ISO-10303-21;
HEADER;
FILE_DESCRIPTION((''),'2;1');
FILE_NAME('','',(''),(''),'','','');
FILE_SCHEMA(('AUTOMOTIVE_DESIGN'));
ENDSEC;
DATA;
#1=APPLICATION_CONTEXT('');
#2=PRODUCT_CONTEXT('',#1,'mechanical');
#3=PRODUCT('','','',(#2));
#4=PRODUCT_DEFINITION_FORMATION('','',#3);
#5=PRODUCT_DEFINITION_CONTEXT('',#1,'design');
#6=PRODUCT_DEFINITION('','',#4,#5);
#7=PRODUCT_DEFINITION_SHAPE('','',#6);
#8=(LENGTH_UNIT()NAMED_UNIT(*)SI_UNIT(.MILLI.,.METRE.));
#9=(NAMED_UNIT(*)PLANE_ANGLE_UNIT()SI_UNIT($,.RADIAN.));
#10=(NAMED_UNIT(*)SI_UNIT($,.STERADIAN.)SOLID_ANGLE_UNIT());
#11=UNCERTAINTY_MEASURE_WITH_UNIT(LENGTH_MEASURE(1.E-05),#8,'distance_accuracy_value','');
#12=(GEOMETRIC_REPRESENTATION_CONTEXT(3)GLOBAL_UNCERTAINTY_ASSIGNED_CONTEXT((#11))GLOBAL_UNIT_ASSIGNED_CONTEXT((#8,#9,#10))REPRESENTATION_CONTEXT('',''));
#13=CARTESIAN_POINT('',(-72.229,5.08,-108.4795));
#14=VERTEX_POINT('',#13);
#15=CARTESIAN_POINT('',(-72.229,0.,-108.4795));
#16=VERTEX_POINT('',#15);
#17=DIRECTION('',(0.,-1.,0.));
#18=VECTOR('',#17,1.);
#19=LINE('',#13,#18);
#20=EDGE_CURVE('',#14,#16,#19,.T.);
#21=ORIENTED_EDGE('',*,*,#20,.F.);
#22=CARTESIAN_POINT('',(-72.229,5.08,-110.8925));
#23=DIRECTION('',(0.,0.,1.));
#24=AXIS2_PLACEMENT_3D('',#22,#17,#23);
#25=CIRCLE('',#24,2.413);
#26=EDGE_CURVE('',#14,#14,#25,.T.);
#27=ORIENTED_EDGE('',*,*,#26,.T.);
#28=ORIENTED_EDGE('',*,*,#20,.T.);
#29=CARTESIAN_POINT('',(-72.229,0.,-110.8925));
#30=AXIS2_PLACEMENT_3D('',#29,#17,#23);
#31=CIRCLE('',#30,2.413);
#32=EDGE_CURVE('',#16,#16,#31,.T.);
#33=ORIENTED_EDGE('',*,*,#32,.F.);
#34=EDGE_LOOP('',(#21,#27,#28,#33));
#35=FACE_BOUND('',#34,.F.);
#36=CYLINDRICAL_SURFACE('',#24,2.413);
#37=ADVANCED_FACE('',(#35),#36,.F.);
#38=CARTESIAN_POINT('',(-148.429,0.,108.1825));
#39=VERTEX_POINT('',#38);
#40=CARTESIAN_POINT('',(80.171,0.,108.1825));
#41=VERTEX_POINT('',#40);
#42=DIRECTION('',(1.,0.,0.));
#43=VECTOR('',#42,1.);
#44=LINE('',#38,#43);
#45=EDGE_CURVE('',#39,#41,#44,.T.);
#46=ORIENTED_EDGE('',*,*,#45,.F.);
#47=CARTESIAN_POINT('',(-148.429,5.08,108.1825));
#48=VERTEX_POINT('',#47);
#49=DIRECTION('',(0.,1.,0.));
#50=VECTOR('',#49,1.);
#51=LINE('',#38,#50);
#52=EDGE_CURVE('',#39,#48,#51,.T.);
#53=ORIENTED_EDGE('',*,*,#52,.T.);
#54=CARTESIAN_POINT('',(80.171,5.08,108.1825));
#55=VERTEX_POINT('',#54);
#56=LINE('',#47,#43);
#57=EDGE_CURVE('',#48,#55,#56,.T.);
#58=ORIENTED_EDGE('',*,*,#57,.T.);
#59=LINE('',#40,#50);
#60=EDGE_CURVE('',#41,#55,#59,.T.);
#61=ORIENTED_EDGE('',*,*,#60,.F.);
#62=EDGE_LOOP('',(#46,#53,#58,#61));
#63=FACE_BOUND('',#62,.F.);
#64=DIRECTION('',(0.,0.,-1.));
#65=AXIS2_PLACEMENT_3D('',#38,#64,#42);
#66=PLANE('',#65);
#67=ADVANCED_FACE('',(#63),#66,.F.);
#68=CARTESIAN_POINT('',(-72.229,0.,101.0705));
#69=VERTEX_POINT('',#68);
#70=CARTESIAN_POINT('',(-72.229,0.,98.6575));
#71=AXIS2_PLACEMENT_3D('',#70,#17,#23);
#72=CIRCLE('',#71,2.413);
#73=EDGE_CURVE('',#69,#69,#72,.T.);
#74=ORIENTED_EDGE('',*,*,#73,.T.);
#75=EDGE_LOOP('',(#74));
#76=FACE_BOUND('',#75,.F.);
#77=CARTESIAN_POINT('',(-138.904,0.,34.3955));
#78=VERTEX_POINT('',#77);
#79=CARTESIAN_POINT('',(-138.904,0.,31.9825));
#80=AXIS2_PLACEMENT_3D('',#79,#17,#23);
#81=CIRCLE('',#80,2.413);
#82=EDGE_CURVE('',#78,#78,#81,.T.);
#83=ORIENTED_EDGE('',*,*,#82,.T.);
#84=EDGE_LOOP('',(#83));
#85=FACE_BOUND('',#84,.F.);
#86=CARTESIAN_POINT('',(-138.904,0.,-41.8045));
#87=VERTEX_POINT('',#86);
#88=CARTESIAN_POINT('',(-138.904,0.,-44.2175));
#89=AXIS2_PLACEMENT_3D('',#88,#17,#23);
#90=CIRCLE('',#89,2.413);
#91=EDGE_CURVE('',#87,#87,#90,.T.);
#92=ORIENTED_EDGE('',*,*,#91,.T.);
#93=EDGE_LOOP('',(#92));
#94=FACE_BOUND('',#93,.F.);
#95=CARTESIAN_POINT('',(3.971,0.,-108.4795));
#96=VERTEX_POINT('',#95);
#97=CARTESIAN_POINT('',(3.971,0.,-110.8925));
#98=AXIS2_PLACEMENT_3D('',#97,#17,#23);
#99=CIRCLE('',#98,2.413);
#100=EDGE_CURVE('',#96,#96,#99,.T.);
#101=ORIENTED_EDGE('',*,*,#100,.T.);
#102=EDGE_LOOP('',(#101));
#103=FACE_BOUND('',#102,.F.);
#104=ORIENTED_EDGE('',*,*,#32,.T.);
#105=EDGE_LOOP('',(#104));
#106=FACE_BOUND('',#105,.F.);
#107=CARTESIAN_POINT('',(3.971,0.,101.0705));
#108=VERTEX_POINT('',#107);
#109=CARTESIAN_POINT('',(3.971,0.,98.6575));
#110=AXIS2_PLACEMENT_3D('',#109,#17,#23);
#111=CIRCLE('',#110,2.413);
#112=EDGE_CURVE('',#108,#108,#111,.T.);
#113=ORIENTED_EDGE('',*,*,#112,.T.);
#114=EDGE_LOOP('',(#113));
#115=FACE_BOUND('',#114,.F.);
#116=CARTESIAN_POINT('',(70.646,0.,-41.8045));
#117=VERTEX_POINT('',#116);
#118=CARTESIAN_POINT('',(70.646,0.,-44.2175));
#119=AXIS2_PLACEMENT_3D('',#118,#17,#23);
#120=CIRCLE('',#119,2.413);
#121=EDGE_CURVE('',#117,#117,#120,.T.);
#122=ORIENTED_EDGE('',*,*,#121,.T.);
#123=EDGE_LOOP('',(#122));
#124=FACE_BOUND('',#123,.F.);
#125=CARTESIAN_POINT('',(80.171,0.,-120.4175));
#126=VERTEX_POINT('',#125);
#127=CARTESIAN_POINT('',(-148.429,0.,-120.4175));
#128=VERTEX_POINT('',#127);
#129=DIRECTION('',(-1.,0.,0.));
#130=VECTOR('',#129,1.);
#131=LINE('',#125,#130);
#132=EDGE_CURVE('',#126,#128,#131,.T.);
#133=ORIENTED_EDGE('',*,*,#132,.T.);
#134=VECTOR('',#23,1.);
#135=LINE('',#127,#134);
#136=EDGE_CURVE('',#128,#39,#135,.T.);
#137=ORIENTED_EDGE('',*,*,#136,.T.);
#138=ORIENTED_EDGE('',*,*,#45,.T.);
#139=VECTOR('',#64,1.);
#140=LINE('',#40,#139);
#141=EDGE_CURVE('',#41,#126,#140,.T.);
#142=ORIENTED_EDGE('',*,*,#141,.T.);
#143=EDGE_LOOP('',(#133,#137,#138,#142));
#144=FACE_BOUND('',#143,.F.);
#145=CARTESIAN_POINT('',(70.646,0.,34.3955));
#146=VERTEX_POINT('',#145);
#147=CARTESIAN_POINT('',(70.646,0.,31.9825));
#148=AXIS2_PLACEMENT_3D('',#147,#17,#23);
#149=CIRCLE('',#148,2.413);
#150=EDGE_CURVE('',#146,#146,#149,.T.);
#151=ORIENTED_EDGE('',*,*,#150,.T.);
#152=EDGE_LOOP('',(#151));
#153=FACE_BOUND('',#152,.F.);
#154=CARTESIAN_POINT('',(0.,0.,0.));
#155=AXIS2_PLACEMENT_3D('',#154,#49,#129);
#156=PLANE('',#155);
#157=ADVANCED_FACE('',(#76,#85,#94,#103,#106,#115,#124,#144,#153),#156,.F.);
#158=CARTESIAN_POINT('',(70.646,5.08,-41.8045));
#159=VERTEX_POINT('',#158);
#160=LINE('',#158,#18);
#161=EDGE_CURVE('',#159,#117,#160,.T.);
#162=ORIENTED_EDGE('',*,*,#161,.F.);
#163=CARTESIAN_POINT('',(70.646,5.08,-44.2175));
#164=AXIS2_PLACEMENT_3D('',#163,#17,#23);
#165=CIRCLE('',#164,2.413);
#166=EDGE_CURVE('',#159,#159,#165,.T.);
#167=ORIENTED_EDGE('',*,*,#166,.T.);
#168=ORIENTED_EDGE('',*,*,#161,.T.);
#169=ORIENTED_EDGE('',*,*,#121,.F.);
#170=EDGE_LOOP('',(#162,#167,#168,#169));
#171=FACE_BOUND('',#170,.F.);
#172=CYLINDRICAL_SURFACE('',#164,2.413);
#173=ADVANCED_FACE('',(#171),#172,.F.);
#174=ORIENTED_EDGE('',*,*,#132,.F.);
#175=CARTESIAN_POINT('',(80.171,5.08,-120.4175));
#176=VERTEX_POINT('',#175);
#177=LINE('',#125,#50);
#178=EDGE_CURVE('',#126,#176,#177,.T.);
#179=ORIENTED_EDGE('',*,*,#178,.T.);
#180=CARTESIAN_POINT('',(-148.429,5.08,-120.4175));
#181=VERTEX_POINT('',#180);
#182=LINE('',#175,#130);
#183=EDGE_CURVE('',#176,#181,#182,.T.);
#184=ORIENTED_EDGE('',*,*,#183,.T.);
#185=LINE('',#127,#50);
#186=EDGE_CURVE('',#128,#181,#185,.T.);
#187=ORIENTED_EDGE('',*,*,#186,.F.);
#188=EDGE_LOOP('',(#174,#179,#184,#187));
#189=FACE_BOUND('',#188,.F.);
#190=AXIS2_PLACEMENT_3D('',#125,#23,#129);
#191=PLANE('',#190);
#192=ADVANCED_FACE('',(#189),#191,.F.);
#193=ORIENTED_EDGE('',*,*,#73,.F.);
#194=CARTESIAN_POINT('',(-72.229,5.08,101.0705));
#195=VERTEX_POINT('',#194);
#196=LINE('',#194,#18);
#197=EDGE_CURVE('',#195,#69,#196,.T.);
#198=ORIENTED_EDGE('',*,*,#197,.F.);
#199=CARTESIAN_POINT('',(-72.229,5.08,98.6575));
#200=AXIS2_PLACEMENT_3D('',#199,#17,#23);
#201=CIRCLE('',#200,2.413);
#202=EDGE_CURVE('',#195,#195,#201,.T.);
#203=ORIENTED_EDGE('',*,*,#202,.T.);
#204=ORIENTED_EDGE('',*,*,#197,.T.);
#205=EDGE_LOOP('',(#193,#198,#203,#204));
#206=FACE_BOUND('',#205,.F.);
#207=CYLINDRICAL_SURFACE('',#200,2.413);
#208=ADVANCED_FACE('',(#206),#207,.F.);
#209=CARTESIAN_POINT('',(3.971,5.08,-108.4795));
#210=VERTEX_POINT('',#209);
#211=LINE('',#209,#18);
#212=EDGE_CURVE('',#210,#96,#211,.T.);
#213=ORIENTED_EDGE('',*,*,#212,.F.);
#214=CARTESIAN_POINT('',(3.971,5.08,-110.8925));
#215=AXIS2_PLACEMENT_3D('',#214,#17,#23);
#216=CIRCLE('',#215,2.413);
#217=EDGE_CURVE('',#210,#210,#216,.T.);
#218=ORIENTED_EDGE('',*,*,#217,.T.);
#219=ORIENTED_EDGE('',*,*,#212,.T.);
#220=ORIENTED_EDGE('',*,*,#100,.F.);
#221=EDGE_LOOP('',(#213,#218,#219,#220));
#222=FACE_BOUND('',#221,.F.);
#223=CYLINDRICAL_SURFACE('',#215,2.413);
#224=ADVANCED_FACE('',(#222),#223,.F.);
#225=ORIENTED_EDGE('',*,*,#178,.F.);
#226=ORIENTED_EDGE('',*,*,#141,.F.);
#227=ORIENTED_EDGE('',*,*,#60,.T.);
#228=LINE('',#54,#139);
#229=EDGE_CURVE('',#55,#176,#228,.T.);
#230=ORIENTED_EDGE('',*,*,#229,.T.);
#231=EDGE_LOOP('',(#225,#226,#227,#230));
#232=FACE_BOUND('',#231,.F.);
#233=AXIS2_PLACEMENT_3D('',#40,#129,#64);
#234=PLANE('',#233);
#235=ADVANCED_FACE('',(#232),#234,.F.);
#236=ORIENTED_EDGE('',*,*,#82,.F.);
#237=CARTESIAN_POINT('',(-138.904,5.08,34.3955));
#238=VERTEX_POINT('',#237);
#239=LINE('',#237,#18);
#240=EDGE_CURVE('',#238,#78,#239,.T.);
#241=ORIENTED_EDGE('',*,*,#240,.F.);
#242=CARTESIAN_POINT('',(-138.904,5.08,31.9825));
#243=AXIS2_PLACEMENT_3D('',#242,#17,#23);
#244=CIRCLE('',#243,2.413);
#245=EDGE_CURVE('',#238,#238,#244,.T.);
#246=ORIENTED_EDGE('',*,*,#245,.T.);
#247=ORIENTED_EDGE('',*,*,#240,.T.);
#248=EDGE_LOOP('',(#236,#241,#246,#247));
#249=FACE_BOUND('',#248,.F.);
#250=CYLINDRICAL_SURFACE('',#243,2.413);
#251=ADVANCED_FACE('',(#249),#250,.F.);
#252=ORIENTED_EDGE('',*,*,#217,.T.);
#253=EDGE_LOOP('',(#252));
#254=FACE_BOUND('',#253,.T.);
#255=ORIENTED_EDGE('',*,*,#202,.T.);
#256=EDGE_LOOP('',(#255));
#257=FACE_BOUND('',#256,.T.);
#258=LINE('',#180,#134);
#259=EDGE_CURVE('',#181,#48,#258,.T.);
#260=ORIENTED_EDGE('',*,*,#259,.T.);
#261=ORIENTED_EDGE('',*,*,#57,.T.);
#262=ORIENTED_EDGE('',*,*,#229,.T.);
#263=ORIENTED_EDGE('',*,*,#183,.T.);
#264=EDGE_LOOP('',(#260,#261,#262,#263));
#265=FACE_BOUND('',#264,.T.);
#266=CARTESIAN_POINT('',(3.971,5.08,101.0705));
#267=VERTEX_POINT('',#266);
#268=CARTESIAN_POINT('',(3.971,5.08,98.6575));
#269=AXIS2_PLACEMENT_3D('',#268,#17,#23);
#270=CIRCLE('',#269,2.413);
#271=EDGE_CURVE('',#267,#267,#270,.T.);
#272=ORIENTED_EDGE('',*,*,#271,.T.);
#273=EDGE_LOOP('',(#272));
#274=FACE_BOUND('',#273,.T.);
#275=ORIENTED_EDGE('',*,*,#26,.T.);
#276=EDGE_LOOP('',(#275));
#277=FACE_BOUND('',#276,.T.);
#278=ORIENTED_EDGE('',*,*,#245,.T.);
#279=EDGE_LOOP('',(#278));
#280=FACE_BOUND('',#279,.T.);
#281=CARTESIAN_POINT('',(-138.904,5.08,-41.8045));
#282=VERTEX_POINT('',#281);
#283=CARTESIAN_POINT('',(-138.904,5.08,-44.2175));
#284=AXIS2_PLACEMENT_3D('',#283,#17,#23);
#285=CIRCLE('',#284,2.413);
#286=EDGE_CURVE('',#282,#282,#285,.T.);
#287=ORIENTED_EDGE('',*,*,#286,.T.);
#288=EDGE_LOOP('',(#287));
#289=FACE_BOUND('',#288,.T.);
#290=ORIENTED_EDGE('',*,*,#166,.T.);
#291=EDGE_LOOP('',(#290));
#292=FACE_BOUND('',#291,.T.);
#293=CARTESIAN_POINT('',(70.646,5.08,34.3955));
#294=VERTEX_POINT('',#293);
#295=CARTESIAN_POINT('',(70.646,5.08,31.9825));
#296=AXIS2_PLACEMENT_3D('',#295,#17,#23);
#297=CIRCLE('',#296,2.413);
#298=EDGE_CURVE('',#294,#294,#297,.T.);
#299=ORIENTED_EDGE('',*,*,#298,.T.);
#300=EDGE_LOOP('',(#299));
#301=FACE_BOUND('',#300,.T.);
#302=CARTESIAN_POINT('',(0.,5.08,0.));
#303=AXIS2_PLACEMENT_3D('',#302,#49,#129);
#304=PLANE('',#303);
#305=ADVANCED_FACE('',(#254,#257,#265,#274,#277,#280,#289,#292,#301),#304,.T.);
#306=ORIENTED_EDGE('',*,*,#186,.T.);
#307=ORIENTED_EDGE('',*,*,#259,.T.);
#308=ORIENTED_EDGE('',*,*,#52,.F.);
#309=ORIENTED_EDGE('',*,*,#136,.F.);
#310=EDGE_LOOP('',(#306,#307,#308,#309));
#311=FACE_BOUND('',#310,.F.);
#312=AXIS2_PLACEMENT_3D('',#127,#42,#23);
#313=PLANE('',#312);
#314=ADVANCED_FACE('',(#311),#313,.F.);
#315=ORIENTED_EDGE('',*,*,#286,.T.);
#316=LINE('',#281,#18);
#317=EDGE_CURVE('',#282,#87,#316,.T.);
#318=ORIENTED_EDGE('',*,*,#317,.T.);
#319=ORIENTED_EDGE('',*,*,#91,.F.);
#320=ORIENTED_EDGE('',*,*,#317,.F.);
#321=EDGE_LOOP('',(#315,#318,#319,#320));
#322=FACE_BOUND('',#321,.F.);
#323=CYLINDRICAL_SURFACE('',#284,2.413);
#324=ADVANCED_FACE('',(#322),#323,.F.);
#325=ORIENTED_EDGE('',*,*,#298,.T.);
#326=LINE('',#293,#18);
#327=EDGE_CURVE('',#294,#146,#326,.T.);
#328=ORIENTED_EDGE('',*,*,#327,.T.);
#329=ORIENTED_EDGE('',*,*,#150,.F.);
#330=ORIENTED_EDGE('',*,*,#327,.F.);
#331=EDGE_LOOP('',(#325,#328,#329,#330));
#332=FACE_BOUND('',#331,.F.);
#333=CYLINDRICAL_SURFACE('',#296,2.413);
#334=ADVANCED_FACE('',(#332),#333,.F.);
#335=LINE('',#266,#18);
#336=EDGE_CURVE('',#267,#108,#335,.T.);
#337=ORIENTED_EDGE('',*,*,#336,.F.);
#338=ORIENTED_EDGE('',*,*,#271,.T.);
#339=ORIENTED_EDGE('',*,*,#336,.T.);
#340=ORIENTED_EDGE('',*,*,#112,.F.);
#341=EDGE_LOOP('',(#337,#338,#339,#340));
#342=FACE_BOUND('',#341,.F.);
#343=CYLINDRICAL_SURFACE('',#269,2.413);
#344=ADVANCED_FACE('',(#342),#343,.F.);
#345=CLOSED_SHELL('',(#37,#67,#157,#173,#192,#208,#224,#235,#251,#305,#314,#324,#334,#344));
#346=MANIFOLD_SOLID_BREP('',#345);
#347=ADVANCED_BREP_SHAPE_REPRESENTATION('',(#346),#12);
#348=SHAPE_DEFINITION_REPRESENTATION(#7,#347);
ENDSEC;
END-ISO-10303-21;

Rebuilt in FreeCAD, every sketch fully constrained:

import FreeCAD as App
import Part
import Sketcher

V = App.Vector
Q = App.Units.Quantity


def add_polygon(sketch, points):
    """Adds a closed chain of lines whose ends are joined by coincident constraints."""
    first, n = sketch.GeometryCount, len(points)
    for a, b in zip(points, points[1:] + points[:1]):
        sketch.addGeometry(Part.LineSegment(App.Vector(*a, 0), App.Vector(*b, 0)), False)
    for i in range(n):
        sketch.addConstraint(Sketcher.Constraint("Coincident", first + i, 2, first + (i + 1) % n, 1))

doc = App.newDocument("Part")
body = doc.addObject("PartDesign::Body", "Body")

# Sketch on XZ plane
sketch1 = doc.addObject("Sketcher::SketchObject", "Sketch")
body.addObject(sketch1)
sketch1.AttachmentSupport = (doc.XZ_Plane, [""])
sketch1.MapMode = "FlatFace"
add_polygon(sketch1, [(-148, -120), (-148, 108), (80, 108), (80, -120)])  # lines 0-3
sketch1.addConstraint([
    Sketcher.Constraint("Vertical", 0),
    Sketcher.Constraint("Horizontal", 1),
    Sketcher.Constraint("Vertical", 2),
    Sketcher.Constraint("Horizontal", 3),
    Sketcher.Constraint("Equal", 3, 0),
    Sketcher.Constraint("DistanceX", 1, 1, 1, 2, Q("9 in")),
    Sketcher.Constraint("DistanceX", 0, 2, -1, 1, 148.429),
    Sketcher.Constraint("DistanceY", -1, 1, 0, 2, 108.1825),
])
pad1 = doc.addObject("PartDesign::Pad", "Pad")
body.addObject(pad1)
pad1.Profile = sketch1
pad1.Length = Q("0.2 in")
pad1.Reversed = True

# Sketch on XZ plane
sketch2 = doc.addObject("Sketcher::SketchObject", "Sketch001")
body.addObject(sketch2)
sketch2.AttachmentSupport = (doc.XZ_Plane, [""])
sketch2.MapMode = "FlatFace"
sketch2.AttachmentOffset = App.Placement(V(0, 0, -0.2 * 25.4), App.Rotation())
sketch2.addGeometry([
    Part.Circle(V(-138.9, 32, 0), V(0, 0, 1), 2.4),  # 0
    Part.Circle(V(-138.9, -44.2, 0), V(0, 0, 1), 2.4),  # 1
    Part.Circle(V(-72.2, -110.9, 0), V(0, 0, 1), 2.4),  # 2
    Part.Circle(V(4, -110.9, 0), V(0, 0, 1), 2.4),  # 3
    Part.Circle(V(70.6, -44.2, 0), V(0, 0, 1), 2.4),  # 4
    Part.Circle(V(70.6, 32, 0), V(0, 0, 1), 2.4),  # 5
    Part.Circle(V(-72.2, 98.7, 0), V(0, 0, 1), 2.4),  # 6
    Part.Circle(V(4, 98.7, 0), V(0, 0, 1), 2.4),  # 7
], False)
sketch2.addConstraint([
    Sketcher.Constraint("Equal", 0, 1),
    Sketcher.Constraint("Equal", 1, 2),
    Sketcher.Constraint("Equal", 2, 3),
    Sketcher.Constraint("Equal", 3, 4),
    Sketcher.Constraint("Equal", 4, 5),
    Sketcher.Constraint("Equal", 5, 6),
    Sketcher.Constraint("Equal", 6, 7),
    Sketcher.Constraint("Horizontal", 2, 3, 3, 3),
    Sketcher.Constraint("Horizontal", 1, 3, 4, 3),
    Sketcher.Constraint("Horizontal", 0, 3, 5, 3),
    Sketcher.Constraint("Horizontal", 6, 3, 7, 3),
    Sketcher.Constraint("Vertical", 0, 3, 1, 3),
    Sketcher.Constraint("Vertical", 4, 3, 5, 3),
    Sketcher.Constraint("Vertical", 2, 3, 6, 3),
    Sketcher.Constraint("Vertical", 3, 3, 7, 3),
    Sketcher.Constraint("Diameter", 0, Q("0.19 in")),
    Sketcher.Constraint("DistanceY", 1, 3, 0, 3, Q("3 in")),
    Sketcher.Constraint("DistanceX", 2, 3, 3, 3, Q("3 in")),
    Sketcher.Constraint("DistanceX", 1, 3, 4, 3, Q("8.25 in")),
    Sketcher.Constraint("DistanceY", 2, 3, 6, 3, Q("8.25 in")),
    Sketcher.Constraint("DistanceX", 1, 3, 2, 3, Q("2.625 in")),
    Sketcher.Constraint("DistanceY", 2, 3, 1, 3, Q("2.625 in")),
    Sketcher.Constraint("DistanceX", 0, 3, -1, 1, 138.904),
    Sketcher.Constraint("DistanceY", -1, 1, 0, 3, 31.9825),
])
doc.recompute()
hole = doc.addObject("PartDesign::Hole", "Hole")
body.addObject(hole)
hole.Profile = sketch2
hole.ThreadType = "None"
hole.Diameter = Q("0.19 in")
hole.DepthType = "ThroughAll"
hole.Reversed = True

doc.recompute()
